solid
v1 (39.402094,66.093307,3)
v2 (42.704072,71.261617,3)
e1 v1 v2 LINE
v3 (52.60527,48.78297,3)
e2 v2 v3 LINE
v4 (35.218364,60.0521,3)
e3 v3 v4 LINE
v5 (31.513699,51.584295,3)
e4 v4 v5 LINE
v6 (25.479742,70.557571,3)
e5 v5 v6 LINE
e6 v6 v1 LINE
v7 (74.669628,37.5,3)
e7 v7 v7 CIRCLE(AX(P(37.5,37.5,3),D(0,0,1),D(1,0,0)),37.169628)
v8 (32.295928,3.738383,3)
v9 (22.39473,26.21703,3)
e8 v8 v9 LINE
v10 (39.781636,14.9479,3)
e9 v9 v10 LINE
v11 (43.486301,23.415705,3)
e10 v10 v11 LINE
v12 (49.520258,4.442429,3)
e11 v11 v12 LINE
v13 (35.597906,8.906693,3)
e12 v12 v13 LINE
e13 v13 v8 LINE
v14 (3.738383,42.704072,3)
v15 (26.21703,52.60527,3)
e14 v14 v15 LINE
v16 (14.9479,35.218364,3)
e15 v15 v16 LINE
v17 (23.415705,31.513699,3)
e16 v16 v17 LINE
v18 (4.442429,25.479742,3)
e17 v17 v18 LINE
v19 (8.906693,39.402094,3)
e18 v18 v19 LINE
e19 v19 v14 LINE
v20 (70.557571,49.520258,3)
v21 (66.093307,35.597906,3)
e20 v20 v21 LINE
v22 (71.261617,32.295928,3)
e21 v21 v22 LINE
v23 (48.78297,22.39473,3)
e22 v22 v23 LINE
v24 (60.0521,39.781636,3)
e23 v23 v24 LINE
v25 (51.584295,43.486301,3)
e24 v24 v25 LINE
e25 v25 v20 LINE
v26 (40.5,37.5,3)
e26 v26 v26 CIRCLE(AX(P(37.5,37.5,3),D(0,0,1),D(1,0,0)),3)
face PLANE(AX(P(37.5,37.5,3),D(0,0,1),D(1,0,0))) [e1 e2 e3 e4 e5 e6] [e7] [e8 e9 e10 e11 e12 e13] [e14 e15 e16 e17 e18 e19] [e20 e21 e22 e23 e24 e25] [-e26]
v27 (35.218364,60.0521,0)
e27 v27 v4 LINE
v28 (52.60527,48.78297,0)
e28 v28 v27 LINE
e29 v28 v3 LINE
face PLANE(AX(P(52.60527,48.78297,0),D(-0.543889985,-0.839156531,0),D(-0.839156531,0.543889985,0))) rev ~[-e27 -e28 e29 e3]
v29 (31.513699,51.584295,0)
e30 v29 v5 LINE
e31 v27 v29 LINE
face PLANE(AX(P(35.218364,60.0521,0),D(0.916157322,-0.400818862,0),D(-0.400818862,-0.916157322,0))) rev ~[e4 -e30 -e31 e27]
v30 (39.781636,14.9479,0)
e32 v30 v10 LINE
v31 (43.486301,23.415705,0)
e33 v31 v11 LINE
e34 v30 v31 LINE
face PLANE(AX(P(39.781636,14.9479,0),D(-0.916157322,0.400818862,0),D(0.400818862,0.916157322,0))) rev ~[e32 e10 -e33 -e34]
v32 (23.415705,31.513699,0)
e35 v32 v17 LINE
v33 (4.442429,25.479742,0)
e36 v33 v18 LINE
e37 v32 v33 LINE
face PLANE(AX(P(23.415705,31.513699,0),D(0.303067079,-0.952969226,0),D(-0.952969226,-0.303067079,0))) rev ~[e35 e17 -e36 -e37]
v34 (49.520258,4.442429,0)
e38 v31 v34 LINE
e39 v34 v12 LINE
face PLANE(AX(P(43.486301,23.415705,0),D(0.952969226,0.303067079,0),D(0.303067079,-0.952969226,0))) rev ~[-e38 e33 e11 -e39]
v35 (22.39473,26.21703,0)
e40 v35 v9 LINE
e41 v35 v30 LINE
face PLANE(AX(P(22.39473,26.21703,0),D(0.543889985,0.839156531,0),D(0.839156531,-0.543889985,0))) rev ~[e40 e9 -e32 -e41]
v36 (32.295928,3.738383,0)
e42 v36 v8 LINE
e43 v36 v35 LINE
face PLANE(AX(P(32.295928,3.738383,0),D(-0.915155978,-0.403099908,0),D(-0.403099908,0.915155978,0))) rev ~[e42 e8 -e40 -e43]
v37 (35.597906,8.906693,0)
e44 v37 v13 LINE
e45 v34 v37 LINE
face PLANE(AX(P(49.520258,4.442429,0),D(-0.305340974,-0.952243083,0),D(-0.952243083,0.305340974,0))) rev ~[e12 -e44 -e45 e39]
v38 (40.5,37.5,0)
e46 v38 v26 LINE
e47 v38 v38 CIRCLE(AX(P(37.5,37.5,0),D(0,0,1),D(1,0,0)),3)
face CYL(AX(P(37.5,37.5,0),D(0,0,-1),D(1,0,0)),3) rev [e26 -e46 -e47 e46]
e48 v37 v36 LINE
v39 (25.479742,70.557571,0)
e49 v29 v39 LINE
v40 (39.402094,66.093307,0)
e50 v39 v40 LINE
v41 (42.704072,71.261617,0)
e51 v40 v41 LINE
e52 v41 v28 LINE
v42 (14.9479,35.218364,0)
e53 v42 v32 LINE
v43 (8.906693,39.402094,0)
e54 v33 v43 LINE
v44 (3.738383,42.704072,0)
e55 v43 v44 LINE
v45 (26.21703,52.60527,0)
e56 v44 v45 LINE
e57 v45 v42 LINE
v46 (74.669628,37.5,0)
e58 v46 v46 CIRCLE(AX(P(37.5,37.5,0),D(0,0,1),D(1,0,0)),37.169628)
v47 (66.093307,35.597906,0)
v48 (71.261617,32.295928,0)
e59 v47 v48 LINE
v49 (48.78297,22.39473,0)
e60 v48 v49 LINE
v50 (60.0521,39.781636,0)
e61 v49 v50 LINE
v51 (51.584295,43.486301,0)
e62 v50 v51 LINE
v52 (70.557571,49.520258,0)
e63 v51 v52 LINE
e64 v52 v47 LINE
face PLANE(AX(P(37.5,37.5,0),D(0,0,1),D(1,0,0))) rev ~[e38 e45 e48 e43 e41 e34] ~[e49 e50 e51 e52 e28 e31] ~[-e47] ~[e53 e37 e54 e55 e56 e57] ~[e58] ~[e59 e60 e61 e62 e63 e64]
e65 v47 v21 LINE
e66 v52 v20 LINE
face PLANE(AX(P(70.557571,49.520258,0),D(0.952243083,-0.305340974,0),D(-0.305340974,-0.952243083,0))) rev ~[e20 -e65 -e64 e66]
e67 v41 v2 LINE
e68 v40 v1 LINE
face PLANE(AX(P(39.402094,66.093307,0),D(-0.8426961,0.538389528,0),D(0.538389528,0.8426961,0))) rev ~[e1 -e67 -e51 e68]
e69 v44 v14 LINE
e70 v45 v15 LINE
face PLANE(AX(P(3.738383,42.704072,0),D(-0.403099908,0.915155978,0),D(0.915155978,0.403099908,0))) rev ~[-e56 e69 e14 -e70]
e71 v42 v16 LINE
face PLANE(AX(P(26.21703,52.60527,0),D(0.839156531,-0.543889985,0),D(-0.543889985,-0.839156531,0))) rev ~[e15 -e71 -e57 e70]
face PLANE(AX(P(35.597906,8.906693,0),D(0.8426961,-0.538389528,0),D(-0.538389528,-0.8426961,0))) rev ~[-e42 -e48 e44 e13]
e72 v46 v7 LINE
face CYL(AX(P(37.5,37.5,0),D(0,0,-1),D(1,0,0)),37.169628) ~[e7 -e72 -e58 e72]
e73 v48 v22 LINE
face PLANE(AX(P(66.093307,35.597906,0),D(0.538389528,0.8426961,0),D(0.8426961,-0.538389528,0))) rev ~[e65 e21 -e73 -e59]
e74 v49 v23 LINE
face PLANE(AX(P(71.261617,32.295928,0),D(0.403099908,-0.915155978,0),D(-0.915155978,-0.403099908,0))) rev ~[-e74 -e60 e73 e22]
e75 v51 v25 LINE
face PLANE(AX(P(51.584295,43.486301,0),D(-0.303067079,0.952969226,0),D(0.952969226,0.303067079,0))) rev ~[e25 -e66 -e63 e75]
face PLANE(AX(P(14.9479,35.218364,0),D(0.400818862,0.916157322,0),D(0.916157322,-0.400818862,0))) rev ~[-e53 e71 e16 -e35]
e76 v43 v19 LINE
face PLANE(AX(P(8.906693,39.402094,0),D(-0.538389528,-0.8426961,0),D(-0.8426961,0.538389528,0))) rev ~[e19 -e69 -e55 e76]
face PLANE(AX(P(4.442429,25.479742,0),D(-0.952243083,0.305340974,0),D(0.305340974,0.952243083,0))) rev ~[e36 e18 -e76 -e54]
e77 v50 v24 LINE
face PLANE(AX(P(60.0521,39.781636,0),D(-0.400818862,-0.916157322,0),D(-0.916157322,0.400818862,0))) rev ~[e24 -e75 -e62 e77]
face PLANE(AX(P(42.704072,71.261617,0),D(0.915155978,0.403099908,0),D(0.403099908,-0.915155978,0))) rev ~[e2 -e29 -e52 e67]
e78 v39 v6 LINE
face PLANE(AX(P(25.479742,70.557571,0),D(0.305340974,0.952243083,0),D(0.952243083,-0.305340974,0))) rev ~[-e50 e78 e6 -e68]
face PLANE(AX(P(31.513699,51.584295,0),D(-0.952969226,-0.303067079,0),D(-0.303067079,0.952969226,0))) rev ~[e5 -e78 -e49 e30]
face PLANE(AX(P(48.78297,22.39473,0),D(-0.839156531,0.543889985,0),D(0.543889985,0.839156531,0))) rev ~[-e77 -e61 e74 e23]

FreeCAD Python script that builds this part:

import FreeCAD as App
import Part
import Sketcher

V = App.Vector
Q = App.Units.Quantity

doc = App.newDocument("Part")
params = doc.addObject("Spreadsheet::Sheet", "Params")
for row, (alias, value) in enumerate([
    ("sketch1_diameter", "6 mm"),
    ("pad1_length", "3 mm"),
], start=1):
    params.set(f"A{row}", alias)
    params.set(f"B{row}", "=" + value)
    params.setAlias(f"B{row}", alias)

body = doc.addObject("PartDesign::Body", "Body")

# Sketch on XY plane
sketch1 = body.newObject("Sketcher::SketchObject", "Sketch")
sketch1.AttachmentSupport = (doc.getObject("XY_Plane"), [""])
sketch1.MapMode = "FlatFace"
sketch1.addGeometry([
    Part.Circle(V(37.5, 37.5, 0), V(0, 0, 1), 37.2),  # 0
    Part.LineSegment(V(49.5, 4.4, 0), V(35.6, 8.9, 0)),  # 1
    Part.LineSegment(V(35.6, 8.9, 0), V(32.3, 3.7, 0)),  # 2
    Part.LineSegment(V(32.3, 3.7, 0), V(22.4, 26.2, 0)),  # 3
    Part.LineSegment(V(22.4, 26.2, 0), V(39.8, 14.9, 0)),  # 4
    Part.LineSegment(V(39.8, 14.9, 0), V(43.5, 23.4, 0)),  # 5
    Part.LineSegment(V(43.5, 23.4, 0), V(49.5, 4.4, 0)),  # 6
    Part.LineSegment(V(66.1, 35.6, 0), V(71.3, 32.3, 0)),  # 7
    Part.LineSegment(V(71.3, 32.3, 0), V(48.8, 22.4, 0)),  # 8
    Part.LineSegment(V(48.8, 22.4, 0), V(60.1, 39.8, 0)),  # 9
    Part.LineSegment(V(60.1, 39.8, 0), V(51.6, 43.5, 0)),  # 10
    Part.LineSegment(V(51.6, 43.5, 0), V(70.6, 49.5, 0)),  # 11
    Part.LineSegment(V(70.6, 49.5, 0), V(66.1, 35.6, 0)),  # 12
    Part.LineSegment(V(8.9, 39.4, 0), V(3.7, 42.7, 0)),  # 13
    Part.LineSegment(V(3.7, 42.7, 0), V(26.2, 52.6, 0)),  # 14
    Part.LineSegment(V(26.2, 52.6, 0), V(14.9, 35.2, 0)),  # 15
    Part.LineSegment(V(14.9, 35.2, 0), V(23.4, 31.5, 0)),  # 16
    Part.LineSegment(V(23.4, 31.5, 0), V(4.4, 25.5, 0)),  # 17
    Part.LineSegment(V(4.4, 25.5, 0), V(8.9, 39.4, 0)),  # 18
    Part.Circle(V(37.5, 37.5, 0), V(0, 0, 1), 3),  # 19
    Part.LineSegment(V(39.4, 66.1, 0), V(42.7, 71.3, 0)),  # 20
    Part.LineSegment(V(42.7, 71.3, 0), V(52.6, 48.8, 0)),  # 21
    Part.LineSegment(V(52.6, 48.8, 0), V(35.2, 60.1, 0)),  # 22
    Part.LineSegment(V(35.2, 60.1, 0), V(31.5, 51.6, 0)),  # 23
    Part.LineSegment(V(31.5, 51.6, 0), V(25.5, 70.6, 0)),  # 24
    Part.LineSegment(V(25.5, 70.6, 0), V(39.4, 66.1, 0)),  # 25
], False)
sketch1.addConstraint([
    Sketcher.Constraint("Coincident", 1, 2, 2, 1),
    Sketcher.Constraint("Coincident", 2, 2, 3, 1),
    Sketcher.Constraint("Coincident", 3, 2, 4, 1),
    Sketcher.Constraint("Coincident", 4, 2, 5, 1),
    Sketcher.Constraint("Coincident", 5, 2, 6, 1),
    Sketcher.Constraint("Coincident", 6, 2, 1, 1),
    Sketcher.Constraint("Coincident", 7, 2, 8, 1),
    Sketcher.Constraint("Coincident", 8, 2, 9, 1),
    Sketcher.Constraint("Coincident", 9, 2, 10, 1),
    Sketcher.Constraint("Coincident", 10, 2, 11, 1),
    Sketcher.Constraint("Coincident", 11, 2, 12, 1),
    Sketcher.Constraint("Coincident", 12, 2, 7, 1),
    Sketcher.Constraint("Coincident", 13, 2, 14, 1),
    Sketcher.Constraint("Coincident", 14, 2, 15, 1),
    Sketcher.Constraint("Coincident", 15, 2, 16, 1),
    Sketcher.Constraint("Coincident", 16, 2, 17, 1),
    Sketcher.Constraint("Coincident", 17, 2, 18, 1),
    Sketcher.Constraint("Coincident", 18, 2, 13, 1),
    Sketcher.Constraint("Coincident", 20, 2, 21, 1),
    Sketcher.Constraint("Coincident", 21, 2, 22, 1),
    Sketcher.Constraint("Coincident", 22, 2, 23, 1),
    Sketcher.Constraint("Coincident", 23, 2, 24, 1),
    Sketcher.Constraint("Coincident", 24, 2, 25, 1),
    Sketcher.Constraint("Coincident", 25, 2, 20, 1),
    Sketcher.Constraint("Coincident", 19, 3, 0, 3),
    Sketcher.Constraint("Perpendicular", 2, 7),
    Sketcher.Constraint("Perpendicular", 3, 8),
    Sketcher.Constraint("Perpendicular", 4, 9),
    Sketcher.Constraint("Perpendicular", 5, 10),
    Sketcher.Constraint("Perpendicular", 6, 11),
    Sketcher.Constraint("Perpendicular", 1, 12),
    Sketcher.Constraint("Parallel", 7, 13),
    Sketcher.Constraint("Parallel", 8, 14),
    Sketcher.Constraint("Parallel", 9, 15),
    Sketcher.Constraint("Parallel", 10, 16),
    Sketcher.Constraint("Parallel", 11, 17),
    Sketcher.Constraint("Parallel", 12, 18),
    Sketcher.Constraint("Perpendicular", 13, 20),
    Sketcher.Constraint("Perpendicular", 14, 21),
    Sketcher.Constraint("Perpendicular", 15, 22),
    Sketcher.Constraint("Perpendicular", 16, 23),
    Sketcher.Constraint("Perpendicular", 17, 24),
    Sketcher.Constraint("Perpendicular", 18, 25),
    Sketcher.Constraint("Equal", 2, 7),
    Sketcher.Constraint("Equal", 3, 8),
    Sketcher.Constraint("Equal", 4, 9),
    Sketcher.Constraint("Equal", 5, 10),
    Sketcher.Constraint("Equal", 7, 13),
    Sketcher.Constraint("Equal", 8, 14),
    Sketcher.Constraint("Equal", 9, 15),
    Sketcher.Constraint("Equal", 10, 16),
    Sketcher.Constraint("Equal", 13, 20),
    Sketcher.Constraint("Equal", 14, 21),
    Sketcher.Constraint("Equal", 15, 22),
    Sketcher.Constraint("Equal", 16, 23),
    Sketcher.Constraint("Diameter", 19, Q("6 mm")),
    Sketcher.Constraint("DistanceX", -1, 1, 0, 3, Q("37.5 mm")),
    Sketcher.Constraint("DistanceY", -1, 1, 0, 3, Q("37.5 mm")),
    Sketcher.Constraint("Diameter", 0, Q("74.339256 mm")),
    Sketcher.Constraint("DistanceY", -1, 1, 4, 2, Q("14.9479 mm")),
    Sketcher.Constraint("DistanceX", -1, 1, 5, 2, Q("43.486301 mm")),
    Sketcher.Constraint("DistanceX", -1, 1, 9, 2, Q("60.0521 mm")),
    Sketcher.Constraint("DistanceY", -1, 1, 10, 2, Q("43.486301 mm")),
    Sketcher.Constraint("DistanceX", -1, 1, 15, 2, Q("14.9479 mm")),
    Sketcher.Constraint("DistanceY", -1, 1, 16, 2, Q("31.513699 mm")),
    Sketcher.Constraint("DistanceY", -1, 1, 22, 2, Q("60.0521 mm")),
    Sketcher.Constraint("DistanceX", -1, 1, 23, 2, Q("31.513699 mm")),
    Sketcher.Constraint("DistanceX", 3, 2, 2, 2, Q("9.901198 mm")),
    Sketcher.Constraint("DistanceY", 6, 2, 3, 2, Q("21.774601 mm")),
    Sketcher.Constraint("DistanceY", 6, 2, 7, 2, Q("27.853499 mm")),
    Sketcher.Constraint("Distance", 3, Q("24.56264 mm")),
    Sketcher.Constraint("Distance", 5, Q("9.242741 mm")),
    Sketcher.Constraint("Distance", 6, Q("19.909642 mm")),
    Sketcher.Constraint("DistanceX", -1, 1, 2, 2, Q("32.295928 mm")),
    Sketcher.Constraint("DistanceY", 2, 2, 1, 2, Q("5.16831 mm")),
    Sketcher.Constraint("DistanceX", 1, 2, 4, 2, Q("4.18373 mm")),
    Sketcher.Constraint("DistanceY", 1, 2, 5, 2, Q("14.509012 mm")),
])
sketch1.setExpression("Constraints[55]", "Params.sketch1_diameter")
pad1 = body.newObject("PartDesign::Pad", "Pad")
pad1.Profile = sketch1
pad1.setExpression("Length", "Params.pad1_length")

doc.recompute()
